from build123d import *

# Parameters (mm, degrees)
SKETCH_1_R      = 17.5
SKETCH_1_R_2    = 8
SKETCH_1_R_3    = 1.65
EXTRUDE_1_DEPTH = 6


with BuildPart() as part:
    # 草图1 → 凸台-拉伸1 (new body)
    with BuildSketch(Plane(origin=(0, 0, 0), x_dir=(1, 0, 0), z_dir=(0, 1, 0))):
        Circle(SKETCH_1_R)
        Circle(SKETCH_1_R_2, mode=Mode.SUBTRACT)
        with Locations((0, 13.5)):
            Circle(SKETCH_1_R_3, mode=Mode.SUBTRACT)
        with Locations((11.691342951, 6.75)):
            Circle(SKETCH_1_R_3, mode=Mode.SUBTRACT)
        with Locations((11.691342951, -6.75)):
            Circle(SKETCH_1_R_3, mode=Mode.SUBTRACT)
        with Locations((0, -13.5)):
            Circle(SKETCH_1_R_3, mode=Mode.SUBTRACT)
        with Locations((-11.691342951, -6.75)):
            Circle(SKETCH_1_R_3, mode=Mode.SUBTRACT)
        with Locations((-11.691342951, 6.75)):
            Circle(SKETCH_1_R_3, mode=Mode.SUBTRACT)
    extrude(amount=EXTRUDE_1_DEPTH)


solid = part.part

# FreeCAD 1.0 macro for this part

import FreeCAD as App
import Part
import Sketcher
from FreeCAD import Vector
Q = App.Units.Quantity

doc = App.newDocument("Part")
body = doc.addObject("PartDesign::Body", "Body")

# Sketch on XZ plane
sketch1 = body.newObject("Sketcher::SketchObject", "Sketch")
sketch1.AttachmentSupport = (doc.getObject("XZ_Plane"), [""])
sketch1.MapMode = "FlatFace"
sketch1.addGeometry(Part.Circle(Vector(0, 0, 0), Vector(0, 0, 1), 17.5), False)
sketch1.addGeometry(Part.Circle(Vector(-11.7, 6.8, 0), Vector(0, 0, 1), 1.6), False)
sketch1.addGeometry(Part.Circle(Vector(0, 13.5, 0), Vector(0, 0, 1), 1.6), False)
sketch1.addGeometry(Part.Circle(Vector(0, 0, 0), Vector(0, 0, 1), 8), False)
sketch1.addGeometry(Part.Circle(Vector(11.7, 6.8, 0), Vector(0, 0, 1), 1.6), False)
sketch1.addGeometry(Part.Circle(Vector(-11.7, -6.8, 0), Vector(0, 0, 1), 1.6), False)
sketch1.addGeometry(Part.Circle(Vector(11.7, -6.8, 0), Vector(0, 0, 1), 1.6), False)
sketch1.addGeometry(Part.Circle(Vector(0, -13.5, 0), Vector(0, 0, 1), 1.6), False)
sketch1.addConstraint(Sketcher.Constraint("Coincident", 0, 3, -1, 1))
sketch1.addConstraint(Sketcher.Constraint("Coincident", 3, 3, -1, 1))
sketch1.addConstraint(Sketcher.Constraint("Equal", 1, 2))
sketch1.addConstraint(Sketcher.Constraint("Equal", 2, 4))
sketch1.addConstraint(Sketcher.Constraint("Equal", 4, 5))
sketch1.addConstraint(Sketcher.Constraint("Equal", 5, 6))
sketch1.addConstraint(Sketcher.Constraint("Equal", 6, 7))
sketch1.addConstraint(Sketcher.Constraint("Symmetric", 4, 3, 5, 3, -1, 1))
sketch1.addConstraint(Sketcher.Constraint("Symmetric", 1, 3, 6, 3, -1, 1))
sketch1.addConstraint(Sketcher.Constraint("Symmetric", 2, 3, 7, 3, -1, 1))
sketch1.addConstraint(Sketcher.Constraint("Symmetric", 1, 3, 4, 3, -2))
sketch1.addConstraint(Sketcher.Constraint("PointOnObject", 2, 3, -2))
sketch1.addConstraint(Sketcher.Constraint("Diameter", 0, Q("35 mm")))
sketch1.addConstraint(Sketcher.Constraint("Diameter", 3, Q("16 mm")))
sketch1.addConstraint(Sketcher.Constraint("Diameter", 1, Q("3.3 mm")))
sketch1.addConstraint(Sketcher.Constraint("DistanceY", -1, 1, 2, 3, Q("13.5 mm")))
sketch1.addConstraint(Sketcher.Constraint("DistanceY", 5, 3, 1, 3, Q("13.5 mm")))
sketch1.addConstraint(Sketcher.Constraint("DistanceX", 1, 3, -1, 1, Q("11.691343 mm")))
pad1 = body.newObject("PartDesign::Pad", "Pad")
pad1.Profile = sketch1
pad1.Length = 6
pad1.Reversed = True

doc.recompute()
